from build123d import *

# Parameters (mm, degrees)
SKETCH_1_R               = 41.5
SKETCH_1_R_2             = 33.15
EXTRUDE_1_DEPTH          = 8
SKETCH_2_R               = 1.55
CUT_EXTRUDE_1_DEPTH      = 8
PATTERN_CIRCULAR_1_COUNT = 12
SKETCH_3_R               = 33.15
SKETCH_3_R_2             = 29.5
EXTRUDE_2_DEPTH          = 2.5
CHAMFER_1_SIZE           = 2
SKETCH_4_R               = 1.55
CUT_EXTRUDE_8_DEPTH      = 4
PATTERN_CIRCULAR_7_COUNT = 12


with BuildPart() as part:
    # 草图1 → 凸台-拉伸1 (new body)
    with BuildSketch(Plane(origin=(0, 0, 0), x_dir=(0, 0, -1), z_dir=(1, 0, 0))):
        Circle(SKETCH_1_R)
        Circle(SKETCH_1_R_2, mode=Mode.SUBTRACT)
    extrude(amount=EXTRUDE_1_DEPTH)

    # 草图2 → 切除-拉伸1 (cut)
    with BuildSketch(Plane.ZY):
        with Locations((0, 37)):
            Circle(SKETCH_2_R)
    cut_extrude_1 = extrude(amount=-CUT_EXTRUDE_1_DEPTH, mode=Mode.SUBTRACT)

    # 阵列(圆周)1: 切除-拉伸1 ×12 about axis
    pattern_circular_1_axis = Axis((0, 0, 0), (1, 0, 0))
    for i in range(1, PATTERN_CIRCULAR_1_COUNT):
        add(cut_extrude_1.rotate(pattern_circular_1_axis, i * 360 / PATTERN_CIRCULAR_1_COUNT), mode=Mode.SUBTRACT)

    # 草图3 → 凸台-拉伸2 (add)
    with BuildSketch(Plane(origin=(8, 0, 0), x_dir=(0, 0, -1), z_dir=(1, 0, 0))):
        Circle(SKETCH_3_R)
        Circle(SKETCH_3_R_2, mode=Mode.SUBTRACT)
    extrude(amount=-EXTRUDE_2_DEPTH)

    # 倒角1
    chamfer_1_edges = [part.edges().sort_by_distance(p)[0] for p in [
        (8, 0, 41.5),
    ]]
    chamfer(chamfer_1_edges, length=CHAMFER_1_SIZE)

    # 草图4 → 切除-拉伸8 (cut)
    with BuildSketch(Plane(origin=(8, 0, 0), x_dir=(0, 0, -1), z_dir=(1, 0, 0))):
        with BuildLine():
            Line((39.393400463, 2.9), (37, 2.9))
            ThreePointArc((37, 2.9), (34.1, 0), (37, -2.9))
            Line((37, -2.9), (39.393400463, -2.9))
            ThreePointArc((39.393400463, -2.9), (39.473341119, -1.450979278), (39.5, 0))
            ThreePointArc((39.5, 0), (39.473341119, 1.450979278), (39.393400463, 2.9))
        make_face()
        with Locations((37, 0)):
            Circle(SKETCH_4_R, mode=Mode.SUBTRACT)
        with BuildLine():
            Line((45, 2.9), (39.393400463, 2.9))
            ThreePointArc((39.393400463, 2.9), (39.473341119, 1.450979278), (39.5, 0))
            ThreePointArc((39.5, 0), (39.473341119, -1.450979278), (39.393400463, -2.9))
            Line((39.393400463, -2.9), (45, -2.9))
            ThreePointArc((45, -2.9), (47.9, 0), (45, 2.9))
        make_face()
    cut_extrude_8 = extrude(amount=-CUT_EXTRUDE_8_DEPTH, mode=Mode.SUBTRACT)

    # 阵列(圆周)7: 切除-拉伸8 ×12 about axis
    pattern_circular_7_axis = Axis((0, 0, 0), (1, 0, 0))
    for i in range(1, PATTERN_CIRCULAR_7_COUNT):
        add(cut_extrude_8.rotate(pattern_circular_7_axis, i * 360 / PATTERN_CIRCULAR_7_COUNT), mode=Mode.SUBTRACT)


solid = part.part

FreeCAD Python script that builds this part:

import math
import FreeCAD as App
import Part
import Sketcher
from FreeCAD import Vector


def edges_at(feature, points):
    """Names of the edges that pass closest to the given points."""
    edges = feature.Shape.Edges
    near = lambda p: min(range(len(edges)), key=lambda i: edges[i].distToShape(Part.Vertex(*p))[0])
    return sorted({f"Edge{near(p) + 1}" for p in points})

doc = App.newDocument("Part")
body = doc.addObject("PartDesign::Body", "Body")

# Sketch on YZ plane
sketch1 = body.newObject("Sketcher::SketchObject", "Sketch")
sketch1.AttachmentSupport = (doc.getObject("YZ_Plane"), [""])
sketch1.MapMode = "FlatFace"
sketch1.addGeometry([
    Part.Circle(Vector(0, 0, 0), Vector(0, 0, 1), 42),
    Part.Circle(Vector(0, 0, 0), Vector(0, 0, 1), 33),
], False)
sketch1.addConstraint([
    Sketcher.Constraint("Coincident", 0, 3, -1, 1),
    Sketcher.Constraint("Coincident", 1, 3, -1, 1),
    Sketcher.Constraint("Diameter", 0, 83.0),
    Sketcher.Constraint("Diameter", 1, 66.3),
])
pad1 = body.newObject("PartDesign::Pad", "Pad")
pad1.Profile = sketch1
pad1.Length = 8

# Sketch on YZ plane
sketch2 = body.newObject("Sketcher::SketchObject", "Sketch001")
sketch2.AttachmentSupport = (doc.getObject("YZ_Plane"), [""])
sketch2.MapMode = "FlatFace"
sketch2.addGeometry(Part.Circle(Vector(37, 0, 0), Vector(0, 0, 1), 1.6), False)
sketch2.addConstraint([
    Sketcher.Constraint("PointOnObject", 0, 3, -1),
    Sketcher.Constraint("Diameter", 0, 3.1),
    Sketcher.Constraint("DistanceX", -1, 1, 0, 3, 37.0),
])
pocket1 = body.newObject("PartDesign::Pocket", "Pocket")
pocket1.Profile = sketch2
pocket1.Length = 8
pocket1.Reversed = True
doc.recompute()

polarpattern = body.newObject("PartDesign::PolarPattern", "PolarPattern")
polarpattern.Originals = [pocket1]
polarpattern.Axis = (doc.getObject("X_Axis"), [""])
polarpattern.Angle = 360
polarpattern.Occurrences = 12
body.Tip = polarpattern

# Sketch on YZ plane
sketch3 = body.newObject("Sketcher::SketchObject", "Sketch002")
sketch3.AttachmentSupport = (doc.getObject("YZ_Plane"), [""])
sketch3.MapMode = "FlatFace"
sketch3.AttachmentOffset = App.Placement(Vector(0, 0, 8), App.Rotation())
sketch3.addGeometry([
    Part.Circle(Vector(0, 0, 0), Vector(0, 0, 1), 33),
    Part.Circle(Vector(0, 0, 0), Vector(0, 0, 1), 30),
], False)
sketch3.addConstraint([
    Sketcher.Constraint("Coincident", 0, 3, -1, 1),
    Sketcher.Constraint("Coincident", 1, 3, -1, 1),
    Sketcher.Constraint("Diameter", 1, 59.0),
    Sketcher.Constraint("Diameter", 0, 66.3),
])
pad2 = body.newObject("PartDesign::Pad", "Pad001")
pad2.Profile = sketch3
pad2.Length = 2.5
pad2.Reversed = True
doc.recompute()

chamfer = body.newObject("PartDesign::Chamfer", "Chamfer")
chamfer.Base = (pad2, edges_at(pad2, [(8, 0, 41.5)]))
chamfer.Size = 2

# Sketch on YZ plane
sketch4 = body.newObject("Sketcher::SketchObject", "Sketch003")
sketch4.AttachmentSupport = (doc.getObject("YZ_Plane"), [""])
sketch4.MapMode = "FlatFace"
sketch4.AttachmentOffset = App.Placement(Vector(0, 0, 8), App.Rotation())
sketch4.addGeometry([
    Part.ArcOfCircle(Part.Circle(Vector(0, -37, 0), Vector(0, 0, 1), 2.9), math.radians(0), math.radians(180)),  # 0
    Part.LineSegment(Vector(-2.9, -37, 0), Vector(-2.9, -45, 0)),  # 1
    Part.ArcOfCircle(Part.Circle(Vector(0, -45, 0), Vector(0, 0, 1), 2.9), math.radians(180), math.radians(360)),  # 2
    Part.LineSegment(Vector(2.9, -45, 0), Vector(2.9, -37, 0)),  # 3
    Part.Circle(Vector(0, -37, 0), Vector(0, 0, 1), 1.6),  # 4
], False)
sketch4.addConstraint([
    Sketcher.Constraint("Tangent", 0, 2, 1, 1),
    Sketcher.Constraint("Tangent", 1, 2, 2, 1),
    Sketcher.Constraint("Tangent", 2, 2, 3, 1),
    Sketcher.Constraint("Tangent", 3, 2, 0, 1),
    Sketcher.Constraint("Vertical", 1),
    Sketcher.Constraint("Vertical", 3),
    Sketcher.Constraint("Coincident", 4, 3, 0, 3),
    Sketcher.Constraint("PointOnObject", 0, 3, -2),
    Sketcher.Constraint("Diameter", 4, 3.1),
    Sketcher.Constraint("Radius", 0, 2.9),
    Sketcher.Constraint("DistanceY", 1, 2, 1, 1, 8.0),
    Sketcher.Constraint("DistanceY", 0, 3, -1, 1, 37.0),
])
pocket2 = body.newObject("PartDesign::Pocket", "Pocket001")
pocket2.Profile = sketch4
pocket2.Length = 4
doc.recompute()

polarpattern2 = body.newObject("PartDesign::PolarPattern", "PolarPattern001")
polarpattern2.Originals = [pocket2]
polarpattern2.Axis = (doc.getObject("X_Axis"), [""])
polarpattern2.Angle = 360
polarpattern2.Occurrences = 12
body.Tip = polarpattern2

doc.recompute()
